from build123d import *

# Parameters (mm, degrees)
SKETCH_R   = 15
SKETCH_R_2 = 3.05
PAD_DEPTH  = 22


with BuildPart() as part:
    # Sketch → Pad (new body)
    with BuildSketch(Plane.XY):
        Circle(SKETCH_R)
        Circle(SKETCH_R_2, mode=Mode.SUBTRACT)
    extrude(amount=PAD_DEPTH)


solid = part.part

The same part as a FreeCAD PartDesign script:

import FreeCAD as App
import Part
import Sketcher
Q = App.Units.Quantity

doc = App.newDocument("Part")
params = doc.addObject("Spreadsheet::Sheet", "Params")
for row, (alias, value) in enumerate([
    ("sketch1_diameter", "30 mm"),
    ("sketch1_diameter2", "6.1 mm"),
    ("pad1_length", "22 mm"),
], start=1):
    params.set(f"A{row}", alias)
    params.set(f"B{row}", "=" + value)
    params.setAlias(f"B{row}", alias)

body = doc.addObject("PartDesign::Body", "Body")

# Sketch on XY plane
sketch1 = body.newObject("Sketcher::SketchObject", "Sketch")
sketch1.AttachmentSupport = (doc.getObject("XY_Plane"), [""])
sketch1.MapMode = "FlatFace"
sketch1.addGeometry(Part.Circle(App.Vector(0, 0, 0), App.Vector(0, 0, 1), 15), False)
sketch1.addGeometry(Part.Circle(App.Vector(0, 0, 0), App.Vector(0, 0, 1), 3.05), False)
sketch1.addConstraint(Sketcher.Constraint("Coincident", 0, 3, -1, 1))
sketch1.addConstraint(Sketcher.Constraint("Coincident", 1, 3, -1, 1))
sketch1.addConstraint(Sketcher.Constraint("Diameter", 0, Q("30 mm")))
sketch1.addConstraint(Sketcher.Constraint("Diameter", 1, Q("6.1 mm")))
sketch1.setExpression("Constraints[2]", "Params.sketch1_diameter")
sketch1.setExpression("Constraints[3]", "Params.sketch1_diameter2")
pad1 = body.newObject("PartDesign::Pad", "Pad")
pad1.Profile = sketch1
pad1.setExpression("Length", "Params.pad1_length")

doc.recompute()
